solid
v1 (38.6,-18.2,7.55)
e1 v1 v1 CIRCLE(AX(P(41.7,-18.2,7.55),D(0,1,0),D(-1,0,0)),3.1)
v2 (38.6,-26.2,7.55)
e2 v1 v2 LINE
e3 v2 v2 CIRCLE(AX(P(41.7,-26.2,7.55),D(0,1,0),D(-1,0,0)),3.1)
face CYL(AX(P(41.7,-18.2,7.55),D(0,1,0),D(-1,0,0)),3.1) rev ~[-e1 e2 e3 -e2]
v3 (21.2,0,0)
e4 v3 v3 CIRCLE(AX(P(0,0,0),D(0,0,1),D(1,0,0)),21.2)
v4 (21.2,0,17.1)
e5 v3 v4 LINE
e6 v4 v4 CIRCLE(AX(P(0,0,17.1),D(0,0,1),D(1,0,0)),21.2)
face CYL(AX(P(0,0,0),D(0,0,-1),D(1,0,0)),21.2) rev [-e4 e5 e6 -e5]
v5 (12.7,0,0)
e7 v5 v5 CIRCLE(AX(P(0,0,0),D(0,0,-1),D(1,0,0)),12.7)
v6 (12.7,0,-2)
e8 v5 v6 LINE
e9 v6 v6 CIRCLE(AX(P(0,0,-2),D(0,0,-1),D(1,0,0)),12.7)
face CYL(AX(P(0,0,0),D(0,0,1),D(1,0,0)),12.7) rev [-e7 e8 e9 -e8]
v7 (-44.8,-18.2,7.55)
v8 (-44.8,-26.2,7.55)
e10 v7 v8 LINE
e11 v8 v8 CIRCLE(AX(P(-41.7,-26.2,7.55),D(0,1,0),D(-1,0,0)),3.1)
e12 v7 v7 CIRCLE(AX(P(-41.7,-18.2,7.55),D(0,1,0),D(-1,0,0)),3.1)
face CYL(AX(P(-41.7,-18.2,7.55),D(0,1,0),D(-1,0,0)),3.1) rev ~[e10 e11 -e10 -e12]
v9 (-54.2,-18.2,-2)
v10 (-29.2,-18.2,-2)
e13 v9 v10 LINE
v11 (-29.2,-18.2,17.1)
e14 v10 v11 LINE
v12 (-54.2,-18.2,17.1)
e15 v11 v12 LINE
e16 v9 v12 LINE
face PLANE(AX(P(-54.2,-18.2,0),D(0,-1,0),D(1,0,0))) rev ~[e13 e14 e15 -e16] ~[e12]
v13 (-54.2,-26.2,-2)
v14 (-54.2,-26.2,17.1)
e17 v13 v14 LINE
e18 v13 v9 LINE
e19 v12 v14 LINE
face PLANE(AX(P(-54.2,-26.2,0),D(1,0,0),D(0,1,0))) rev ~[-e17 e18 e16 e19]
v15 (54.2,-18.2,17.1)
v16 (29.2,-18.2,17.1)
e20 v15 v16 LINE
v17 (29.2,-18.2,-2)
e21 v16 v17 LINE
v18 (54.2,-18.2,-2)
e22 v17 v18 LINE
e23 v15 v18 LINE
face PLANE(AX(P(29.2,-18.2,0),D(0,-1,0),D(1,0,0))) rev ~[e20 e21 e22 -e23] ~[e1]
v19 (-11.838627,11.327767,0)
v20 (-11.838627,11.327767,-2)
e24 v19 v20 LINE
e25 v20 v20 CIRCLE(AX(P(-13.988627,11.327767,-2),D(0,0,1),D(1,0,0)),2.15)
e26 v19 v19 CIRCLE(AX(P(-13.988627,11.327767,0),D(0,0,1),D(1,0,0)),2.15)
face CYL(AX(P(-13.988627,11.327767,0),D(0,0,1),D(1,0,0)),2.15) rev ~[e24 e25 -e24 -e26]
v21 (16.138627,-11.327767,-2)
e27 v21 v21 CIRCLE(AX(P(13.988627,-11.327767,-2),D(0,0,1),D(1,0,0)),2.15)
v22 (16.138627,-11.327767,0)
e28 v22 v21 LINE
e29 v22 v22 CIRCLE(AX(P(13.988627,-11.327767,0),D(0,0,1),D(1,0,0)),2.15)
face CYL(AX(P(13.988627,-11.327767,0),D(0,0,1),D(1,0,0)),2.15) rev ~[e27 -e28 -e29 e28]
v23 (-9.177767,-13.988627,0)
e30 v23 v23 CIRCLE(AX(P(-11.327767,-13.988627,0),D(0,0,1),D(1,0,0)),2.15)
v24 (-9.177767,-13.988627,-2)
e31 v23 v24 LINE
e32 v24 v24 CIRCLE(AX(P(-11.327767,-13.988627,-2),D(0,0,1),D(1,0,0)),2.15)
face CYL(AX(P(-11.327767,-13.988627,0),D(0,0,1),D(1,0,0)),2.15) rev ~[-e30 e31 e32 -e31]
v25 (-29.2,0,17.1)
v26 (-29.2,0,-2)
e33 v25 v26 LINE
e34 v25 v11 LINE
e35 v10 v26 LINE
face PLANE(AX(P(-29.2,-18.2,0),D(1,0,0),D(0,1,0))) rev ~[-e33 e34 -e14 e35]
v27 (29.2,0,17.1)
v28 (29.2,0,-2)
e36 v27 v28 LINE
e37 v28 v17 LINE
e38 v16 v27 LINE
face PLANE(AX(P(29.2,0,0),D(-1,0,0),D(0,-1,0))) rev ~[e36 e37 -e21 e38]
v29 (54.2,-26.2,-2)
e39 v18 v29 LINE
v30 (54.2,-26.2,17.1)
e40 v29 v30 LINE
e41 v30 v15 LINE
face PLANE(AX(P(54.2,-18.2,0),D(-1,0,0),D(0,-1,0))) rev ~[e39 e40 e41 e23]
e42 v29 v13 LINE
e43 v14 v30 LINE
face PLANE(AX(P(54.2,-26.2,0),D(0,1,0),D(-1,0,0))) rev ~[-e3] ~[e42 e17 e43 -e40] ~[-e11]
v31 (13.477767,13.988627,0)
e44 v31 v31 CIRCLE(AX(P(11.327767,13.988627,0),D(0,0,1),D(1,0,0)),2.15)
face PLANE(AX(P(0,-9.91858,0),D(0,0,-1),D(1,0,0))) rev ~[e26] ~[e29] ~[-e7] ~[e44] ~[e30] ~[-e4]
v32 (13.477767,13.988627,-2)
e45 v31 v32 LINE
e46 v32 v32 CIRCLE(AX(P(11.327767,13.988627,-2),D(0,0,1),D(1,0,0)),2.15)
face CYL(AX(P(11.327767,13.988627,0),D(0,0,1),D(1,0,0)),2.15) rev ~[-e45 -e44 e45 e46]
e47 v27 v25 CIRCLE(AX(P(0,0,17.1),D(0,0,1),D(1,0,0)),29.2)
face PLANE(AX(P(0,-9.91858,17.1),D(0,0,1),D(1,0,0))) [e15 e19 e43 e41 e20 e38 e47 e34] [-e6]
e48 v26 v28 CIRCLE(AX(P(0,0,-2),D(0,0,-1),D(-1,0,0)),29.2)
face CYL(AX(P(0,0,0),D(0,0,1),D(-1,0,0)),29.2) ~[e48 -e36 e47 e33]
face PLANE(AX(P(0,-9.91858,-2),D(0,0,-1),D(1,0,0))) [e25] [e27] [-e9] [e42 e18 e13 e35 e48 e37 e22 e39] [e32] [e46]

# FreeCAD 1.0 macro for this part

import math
import FreeCAD as App
import Part
import Sketcher

doc = App.newDocument("Part")
body = doc.addObject("PartDesign::Body", "Body")

sketch1 = body.newObject("Sketcher::SketchObject", "Sketch")
sketch1.AttachmentSupport = (doc.getObject("XY_Plane"), [""])
sketch1.MapMode = "FlatFace"
sketch1.addGeometry(Part.LineSegment(App.Vector(-54, -26, 0), App.Vector(54, -26, 0)), False)
sketch1.addGeometry(Part.LineSegment(App.Vector(54, -26, 0), App.Vector(54, -18, 0)), False)
sketch1.addGeometry(Part.LineSegment(App.Vector(54, -18, 0), App.Vector(29, -18, 0)), False)
sketch1.addGeometry(Part.LineSegment(App.Vector(29, -18, 0), App.Vector(29, 0, 0)), False)
sketch1.addGeometry(Part.ArcOfCircle(Part.Circle(App.Vector(0, 0, 0), App.Vector(0, 0, 1), 29), math.radians(0), math.radians(180)), False)
sketch1.addGeometry(Part.LineSegment(App.Vector(-29, 0, 0), App.Vector(-29, -18, 0)), False)
sketch1.addGeometry(Part.LineSegment(App.Vector(-29, -18, 0), App.Vector(-54, -18, 0)), False)
sketch1.addGeometry(Part.LineSegment(App.Vector(-54, -18, 0), App.Vector(-54, -26, 0)), False)
sketch1.addGeometry(Part.Circle(App.Vector(0, 0, 0), App.Vector(0, 0, 1), 21), False)
sketch1.addConstraint(Sketcher.Constraint("Coincident", 0, 2, 1, 1))
sketch1.addConstraint(Sketcher.Constraint("Coincident", 1, 2, 2, 1))
sketch1.addConstraint(Sketcher.Constraint("Coincident", 2, 2, 3, 1))
sketch1.addConstraint(Sketcher.Constraint("Tangent", 3, 2, 4, 1))
sketch1.addConstraint(Sketcher.Constraint("Tangent", 4, 2, 5, 1))
sketch1.addConstraint(Sketcher.Constraint("Coincident", 5, 2, 6, 1))
sketch1.addConstraint(Sketcher.Constraint("Coincident", 6, 2, 7, 1))
sketch1.addConstraint(Sketcher.Constraint("Coincident", 7, 2, 0, 1))
sketch1.addConstraint(Sketcher.Constraint("Horizontal", 0))
sketch1.addConstraint(Sketcher.Constraint("Vertical", 1))
sketch1.addConstraint(Sketcher.Constraint("Horizontal", 2))
sketch1.addConstraint(Sketcher.Constraint("Vertical", 3))
sketch1.addConstraint(Sketcher.Constraint("Vertical", 5))
sketch1.addConstraint(Sketcher.Constraint("Horizontal", 6))
sketch1.addConstraint(Sketcher.Constraint("Vertical", 7))
sketch1.addConstraint(Sketcher.Constraint("Coincident", 4, 3, -1, 1))
sketch1.addConstraint(Sketcher.Constraint("Coincident", 8, 3, -1, 1))
sketch1.addConstraint(Sketcher.Constraint("Symmetric", 1, 2, 6, 2, -2))
sketch1.addConstraint(Sketcher.Constraint("Diameter", 8, 42.4))
sketch1.addConstraint(Sketcher.Constraint("Radius", 4, 29.2))
sketch1.addConstraint(Sketcher.Constraint("DistanceX", 2, 2, 2, 1, 25.0))
sketch1.addConstraint(Sketcher.Constraint("DistanceY", 1, 1, 1, 2, 8.0))
sketch1.addConstraint(Sketcher.Constraint("DistanceY", 3, 1, 3, 2, 18.2))
pad1 = body.newObject("PartDesign::Pad", "Pad")
pad1.Profile = sketch1
pad1.Length = 17.1

sketch2 = body.newObject("Sketcher::SketchObject", "Sketch001")
sketch2.AttachmentSupport = (doc.getObject("XY_Plane"), [""])
sketch2.MapMode = "FlatFace"
sketch2.addGeometry(Part.LineSegment(App.Vector(-29, -18, 0), App.Vector(-29, 0, 0)), False)
sketch2.addGeometry(Part.ArcOfCircle(Part.Circle(App.Vector(0, 0, 0), App.Vector(0, 0, 1), 29), math.radians(0), math.radians(180)), False)
sketch2.addGeometry(Part.LineSegment(App.Vector(29, 0, 0), App.Vector(29, -18, 0)), False)
sketch2.addGeometry(Part.LineSegment(App.Vector(29, -18, 0), App.Vector(54, -18, 0)), False)
sketch2.addGeometry(Part.LineSegment(App.Vector(54, -18, 0), App.Vector(54, -26, 0)), False)
sketch2.addGeometry(Part.LineSegment(App.Vector(54, -26, 0), App.Vector(-54, -26, 0)), False)
sketch2.addGeometry(Part.LineSegment(App.Vector(-54, -26, 0), App.Vector(-54, -18, 0)), False)
sketch2.addGeometry(Part.LineSegment(App.Vector(-54, -18, 0), App.Vector(-29, -18, 0)), False)
sketch2.addGeometry(Part.Circle(App.Vector(0, 0, 0), App.Vector(0, 0, 1), 13), False)
sketch2.addConstraint(Sketcher.Constraint("Tangent", 0, 2, 1, 2))
sketch2.addConstraint(Sketcher.Constraint("Tangent", 1, 1, 2, 1))
sketch2.addConstraint(Sketcher.Constraint("Coincident", 2, 2, 3, 1))
sketch2.addConstraint(Sketcher.Constraint("Coincident", 3, 2, 4, 1))
sketch2.addConstraint(Sketcher.Constraint("Coincident", 4, 2, 5, 1))
sketch2.addConstraint(Sketcher.Constraint("Coincident", 5, 2, 6, 1))
sketch2.addConstraint(Sketcher.Constraint("Coincident", 6, 2, 7, 1))
sketch2.addConstraint(Sketcher.Constraint("Coincident", 7, 2, 0, 1))
sketch2.addConstraint(Sketcher.Constraint("Vertical", 0))
sketch2.addConstraint(Sketcher.Constraint("Vertical", 2))
sketch2.addConstraint(Sketcher.Constraint("Horizontal", 3))
sketch2.addConstraint(Sketcher.Constraint("Vertical", 4))
sketch2.addConstraint(Sketcher.Constraint("Horizontal", 5))
sketch2.addConstraint(Sketcher.Constraint("Vertical", 6))
sketch2.addConstraint(Sketcher.Constraint("Horizontal", 7))
sketch2.addConstraint(Sketcher.Constraint("Coincident", 1, 3, -1, 1))
sketch2.addConstraint(Sketcher.Constraint("Coincident", 8, 3, -1, 1))
sketch2.addConstraint(Sketcher.Constraint("Symmetric", 3, 2, 6, 2, -2))
sketch2.addConstraint(Sketcher.Constraint("Diameter", 8, 25.4))
sketch2.addConstraint(Sketcher.Constraint("Radius", 1, 29.2))
sketch2.addConstraint(Sketcher.Constraint("DistanceX", 3, 1, 3, 2, 25.0))
sketch2.addConstraint(Sketcher.Constraint("DistanceY", 4, 2, 4, 1, 8.0))
sketch2.addConstraint(Sketcher.Constraint("DistanceY", 0, 1, 0, 2, 18.2))
pad2 = body.newObject("PartDesign::Pad", "Pad001")
pad2.Profile = sketch2
pad2.Length = 2
pad2.Reversed = True

sketch3 = body.newObject("Sketcher::SketchObject", "Sketch002")
sketch3.AttachmentSupport = (doc.getObject("XY_Plane"), [""])
sketch3.MapMode = "FlatFace"
sketch3.addGeometry(Part.Circle(App.Vector(11.3, 14, 0), App.Vector(0, 0, 1), 2.1), False)
sketch3.addGeometry(Part.Circle(App.Vector(14, -11.3, 0), App.Vector(0, 0, 1), 2.1), False)
sketch3.addGeometry(Part.Circle(App.Vector(-11.3, -14, 0), App.Vector(0, 0, 1), 2.1), False)
sketch3.addGeometry(Part.Circle(App.Vector(-14, 11.3, 0), App.Vector(0, 0, 1), 2.1), False)
sketch3.addConstraint(Sketcher.Constraint("Equal", 0, 1))
sketch3.addConstraint(Sketcher.Constraint("Equal", 1, 2))
sketch3.addConstraint(Sketcher.Constraint("Equal", 2, 3))
sketch3.addConstraint(Sketcher.Constraint("Symmetric", 0, 3, 2, 3, -1, 1))
sketch3.addConstraint(Sketcher.Constraint("Symmetric", 1, 3, 3, 3, -1, 1))
sketch3.addConstraint(Sketcher.Constraint("Diameter", 0, 4.3))
sketch3.addConstraint(Sketcher.Constraint("DistanceX", 0, 3, 1, 3, 2.66086))
sketch3.addConstraint(Sketcher.Constraint("DistanceY", 2, 3, 1, 3, 2.66086))
sketch3.addConstraint(Sketcher.Constraint("DistanceX", -1, 1, 0, 3, 11.327767))
sketch3.addConstraint(Sketcher.Constraint("DistanceY", -1, 1, 0, 3, 13.988627))
pocket1 = body.newObject("PartDesign::Pocket", "Pocket")
pocket1.Profile = sketch3
pocket1.Length = 25

sketch4 = body.newObject("Sketcher::SketchObject", "Sketch003")
sketch4.AttachmentSupport = (doc.getObject("XZ_Plane"), [""])
sketch4.MapMode = "FlatFace"
sketch4.AttachmentOffset = App.Placement(App.Vector(0, 0, 18.2), App.Rotation())
sketch4.addGeometry(Part.Circle(App.Vector(-41.7, 7.5, 0), App.Vector(0, 0, 1), 3.1), False)
sketch4.addGeometry(Part.Circle(App.Vector(41.7, 7.5, 0), App.Vector(0, 0, 1), 3.1), False)
sketch4.addConstraint(Sketcher.Constraint("Equal", 0, 1))
sketch4.addConstraint(Sketcher.Constraint("Symmetric", 0, 3, 1, 3, -2))
sketch4.addConstraint(Sketcher.Constraint("Diameter", 0, 6.2))
sketch4.addConstraint(Sketcher.Constraint("DistanceX", 0, 3, -1, 1, 41.7))
sketch4.addConstraint(Sketcher.Constraint("DistanceY", -1, 1, 0, 3, 7.55))
pocket2 = body.newObject("PartDesign::Pocket", "Pocket001")
pocket2.Profile = sketch4
pocket2.Type = "ThroughAll"
pocket2.Reversed = True

doc.recompute()
